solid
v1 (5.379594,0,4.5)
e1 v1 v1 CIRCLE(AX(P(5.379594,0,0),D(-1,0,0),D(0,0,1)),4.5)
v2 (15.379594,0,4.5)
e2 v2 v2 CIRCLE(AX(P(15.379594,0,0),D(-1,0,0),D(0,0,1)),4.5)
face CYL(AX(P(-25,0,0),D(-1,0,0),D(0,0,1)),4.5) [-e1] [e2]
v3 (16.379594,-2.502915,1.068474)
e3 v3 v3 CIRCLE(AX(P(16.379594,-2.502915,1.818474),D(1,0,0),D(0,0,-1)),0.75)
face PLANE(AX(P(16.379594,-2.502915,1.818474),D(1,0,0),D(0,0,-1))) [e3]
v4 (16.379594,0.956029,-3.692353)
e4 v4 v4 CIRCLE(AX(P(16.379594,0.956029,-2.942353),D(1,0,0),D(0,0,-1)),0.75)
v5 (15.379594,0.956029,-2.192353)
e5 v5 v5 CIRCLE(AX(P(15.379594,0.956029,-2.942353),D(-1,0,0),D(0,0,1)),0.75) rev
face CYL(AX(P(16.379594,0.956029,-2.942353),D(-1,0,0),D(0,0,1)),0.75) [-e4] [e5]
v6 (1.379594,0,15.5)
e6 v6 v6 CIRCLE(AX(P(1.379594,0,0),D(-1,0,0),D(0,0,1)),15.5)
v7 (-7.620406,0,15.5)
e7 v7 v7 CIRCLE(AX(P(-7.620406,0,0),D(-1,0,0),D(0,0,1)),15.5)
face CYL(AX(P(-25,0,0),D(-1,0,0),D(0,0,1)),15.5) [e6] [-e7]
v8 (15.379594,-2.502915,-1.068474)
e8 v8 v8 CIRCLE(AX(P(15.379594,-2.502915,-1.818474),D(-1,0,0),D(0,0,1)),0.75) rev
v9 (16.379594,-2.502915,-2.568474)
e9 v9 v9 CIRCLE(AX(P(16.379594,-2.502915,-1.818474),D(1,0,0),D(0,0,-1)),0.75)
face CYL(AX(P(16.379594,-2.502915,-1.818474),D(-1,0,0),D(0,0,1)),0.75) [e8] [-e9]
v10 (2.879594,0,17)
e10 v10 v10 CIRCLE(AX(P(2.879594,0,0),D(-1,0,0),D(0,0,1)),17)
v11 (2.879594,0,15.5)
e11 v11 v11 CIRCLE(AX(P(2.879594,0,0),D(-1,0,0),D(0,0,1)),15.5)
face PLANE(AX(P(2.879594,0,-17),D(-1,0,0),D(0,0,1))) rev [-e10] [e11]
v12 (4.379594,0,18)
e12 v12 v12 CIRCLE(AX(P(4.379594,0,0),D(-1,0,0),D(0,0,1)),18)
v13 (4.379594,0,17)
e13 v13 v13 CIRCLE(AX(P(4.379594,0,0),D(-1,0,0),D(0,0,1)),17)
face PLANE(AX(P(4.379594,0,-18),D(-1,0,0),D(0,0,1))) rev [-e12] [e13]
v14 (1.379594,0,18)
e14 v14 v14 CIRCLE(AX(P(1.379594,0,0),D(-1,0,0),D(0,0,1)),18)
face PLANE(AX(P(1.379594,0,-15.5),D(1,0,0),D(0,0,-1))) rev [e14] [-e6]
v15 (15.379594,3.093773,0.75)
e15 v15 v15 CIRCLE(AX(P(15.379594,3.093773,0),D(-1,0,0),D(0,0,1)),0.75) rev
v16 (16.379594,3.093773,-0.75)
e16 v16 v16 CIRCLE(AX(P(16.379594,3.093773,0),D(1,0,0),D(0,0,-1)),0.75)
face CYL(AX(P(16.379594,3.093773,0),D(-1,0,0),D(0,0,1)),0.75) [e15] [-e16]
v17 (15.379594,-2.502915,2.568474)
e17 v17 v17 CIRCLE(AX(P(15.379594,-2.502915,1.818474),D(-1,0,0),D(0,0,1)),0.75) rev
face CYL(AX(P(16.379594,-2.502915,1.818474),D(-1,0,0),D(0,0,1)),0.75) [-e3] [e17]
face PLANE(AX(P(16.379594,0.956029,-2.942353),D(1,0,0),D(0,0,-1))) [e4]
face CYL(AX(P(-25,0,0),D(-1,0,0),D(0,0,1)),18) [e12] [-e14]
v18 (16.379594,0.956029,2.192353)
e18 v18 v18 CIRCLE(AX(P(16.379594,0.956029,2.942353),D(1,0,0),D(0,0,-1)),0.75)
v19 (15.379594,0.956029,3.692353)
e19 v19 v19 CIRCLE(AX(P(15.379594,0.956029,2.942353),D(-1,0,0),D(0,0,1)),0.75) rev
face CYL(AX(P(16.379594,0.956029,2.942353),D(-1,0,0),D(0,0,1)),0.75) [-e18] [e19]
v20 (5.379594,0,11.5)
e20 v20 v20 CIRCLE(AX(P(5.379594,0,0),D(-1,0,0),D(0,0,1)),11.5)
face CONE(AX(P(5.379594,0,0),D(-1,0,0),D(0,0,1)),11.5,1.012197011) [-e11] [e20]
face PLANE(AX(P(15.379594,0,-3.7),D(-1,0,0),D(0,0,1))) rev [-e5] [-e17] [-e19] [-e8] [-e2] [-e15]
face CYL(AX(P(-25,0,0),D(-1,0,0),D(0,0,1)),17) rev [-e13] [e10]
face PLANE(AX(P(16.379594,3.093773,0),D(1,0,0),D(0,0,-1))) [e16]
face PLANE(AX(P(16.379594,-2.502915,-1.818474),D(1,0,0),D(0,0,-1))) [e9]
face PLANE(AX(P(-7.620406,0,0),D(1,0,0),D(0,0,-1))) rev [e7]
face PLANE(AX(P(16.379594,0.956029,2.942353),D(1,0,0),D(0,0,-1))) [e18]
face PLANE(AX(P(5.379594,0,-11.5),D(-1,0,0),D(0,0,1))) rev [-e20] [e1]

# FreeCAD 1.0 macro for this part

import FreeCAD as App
import Part
import Sketcher

V = App.Vector
Q = App.Units.Quantity


def add_polygon(sketch, points):
    """Adds a closed chain of lines whose ends are joined by coincident constraints."""
    first, n = sketch.GeometryCount, len(points)
    for a, b in zip(points, points[1:] + points[:1]):
        sketch.addGeometry(Part.LineSegment(App.Vector(*a, 0), App.Vector(*b, 0)), False)
    for i in range(n):
        sketch.addConstraint(Sketcher.Constraint("Coincident", first + i, 2, first + (i + 1) % n, 1))

doc = App.newDocument("Part")
body = doc.addObject("PartDesign::Body", "Body")

# Sketch on XZ plane
sketch1 = body.newObject("Sketcher::SketchObject", "Sketch")
sketch1.AttachmentSupport = (doc.getObject("XZ_Plane"), [""])
sketch1.MapMode = "FlatFace"
add_polygon(sketch1, [(-7.6, -15.5), (-7.6, 0), (15.4, 0), (15.4, -4.5), (5.4, -4.5), (5.4, -11.5), (2.9, -15.5), (2.9, -17), (4.4, -17), (4.4, -18), (1.4, -18), (1.4, -15.5)])  # lines 0-11
sketch1.addConstraint(Sketcher.Constraint("Vertical", 0))
sketch1.addConstraint(Sketcher.Constraint("Horizontal", 1))
sketch1.addConstraint(Sketcher.Constraint("Vertical", 2))
sketch1.addConstraint(Sketcher.Constraint("Horizontal", 3))
sketch1.addConstraint(Sketcher.Constraint("Vertical", 4))
sketch1.addConstraint(Sketcher.Constraint("Vertical", 6))
sketch1.addConstraint(Sketcher.Constraint("Horizontal", 7))
sketch1.addConstraint(Sketcher.Constraint("Vertical", 8))
sketch1.addConstraint(Sketcher.Constraint("Horizontal", 9))
sketch1.addConstraint(Sketcher.Constraint("Vertical", 10))
sketch1.addConstraint(Sketcher.Constraint("Horizontal", 11))
sketch1.addConstraint(Sketcher.Constraint("PointOnObject", 0, 2, -1))
sketch1.addConstraint(Sketcher.Constraint("Horizontal", 5, 2, 10, 2))
sketch1.addConstraint(Sketcher.Constraint("Equal", 7, 6))
sketch1.addConstraint(Sketcher.Constraint("DistanceX", 1, 1, 1, 2, Q("23 mm")))
sketch1.addConstraint(Sketcher.Constraint("DistanceX", 3, 2, 3, 1, Q("10 mm")))
sketch1.addConstraint(Sketcher.Constraint("DistanceX", 9, 2, 9, 1, Q("3 mm")))
sketch1.addConstraint(Sketcher.Constraint("DistanceX", 11, 2, 11, 1, Q("9 mm")))
sketch1.addConstraint(Sketcher.Constraint("DistanceY", 4, 2, 4, 1, Q("7 mm")))
sketch1.addConstraint(Sketcher.Constraint("DistanceY", 8, 2, 8, 1, Q("1 mm")))
sketch1.addConstraint(Sketcher.Constraint("DistanceX", 7, 1, 7, 2, Q("1.5 mm")))
sketch1.addConstraint(Sketcher.Constraint("DistanceY", 0, 1, 0, 2, Q("15.5 mm")))
sketch1.addConstraint(Sketcher.Constraint("DistanceY", 2, 2, 2, 1, Q("4.5 mm")))
sketch1.addConstraint(Sketcher.Constraint("DistanceX", 0, 2, -1, 1, Q("7.620406 mm")))
revolution = body.newObject("PartDesign::Revolution", "Revolution")
revolution.Profile = sketch1
revolution.ReferenceAxis = (sketch1, ["H_Axis"])
revolution.Angle = 360

# Sketch on YZ plane
sketch2 = body.newObject("Sketcher::SketchObject", "Sketch001")
sketch2.AttachmentSupport = (doc.getObject("YZ_Plane"), [""])
sketch2.MapMode = "FlatFace"
sketch2.AttachmentOffset = App.Placement(V(0, 0, 15.379594), App.Rotation())
sketch2.addGeometry(Part.Circle(V(3.1, 0, 0), V(0, 0, 1), 0.8), False)
sketch2.addGeometry(Part.Circle(V(1, -2.9, 0), V(0, 0, 1), 0.8), False)
sketch2.addGeometry(Part.Circle(V(-2.5, -1.8, 0), V(0, 0, 1), 0.8), False)
sketch2.addGeometry(Part.Circle(V(-2.5, 1.8, 0), V(0, 0, 1), 0.8), False)
sketch2.addGeometry(Part.Circle(V(1, 2.9, 0), V(0, 0, 1), 0.8), False)
sketch2.addConstraint(Sketcher.Constraint("Equal", 0, 1))
sketch2.addConstraint(Sketcher.Constraint("Equal", 1, 2))
sketch2.addConstraint(Sketcher.Constraint("Equal", 2, 3))
sketch2.addConstraint(Sketcher.Constraint("Equal", 3, 4))
sketch2.addConstraint(Sketcher.Constraint("Symmetric", 2, 3, 3, 3, -1))
sketch2.addConstraint(Sketcher.Constraint("Symmetric", 1, 3, 4, 3, -1))
sketch2.addConstraint(Sketcher.Constraint("PointOnObject", 0, 3, -1))
sketch2.addConstraint(Sketcher.Constraint("Diameter", 0, Q("1.5 mm")))
sketch2.addConstraint(Sketcher.Constraint("DistanceX", -1, 1, 1, 3, Q("0.956029 mm")))
sketch2.addConstraint(Sketcher.Constraint("DistanceY", 1, 3, 2, 3, Q("1.123879 mm")))
sketch2.addConstraint(Sketcher.Constraint("DistanceX", 2, 3, 0, 3, Q("5.596688 mm")))
sketch2.addConstraint(Sketcher.Constraint("DistanceY", 2, 3, 3, 3, Q("3.636949 mm")))
sketch2.addConstraint(Sketcher.Constraint("DistanceX", -1, 1, 0, 3, Q("3.093773 mm")))
pad1 = body.newObject("PartDesign::Pad", "Pad")
pad1.Profile = sketch2
pad1.Length = 1

doc.recompute()
